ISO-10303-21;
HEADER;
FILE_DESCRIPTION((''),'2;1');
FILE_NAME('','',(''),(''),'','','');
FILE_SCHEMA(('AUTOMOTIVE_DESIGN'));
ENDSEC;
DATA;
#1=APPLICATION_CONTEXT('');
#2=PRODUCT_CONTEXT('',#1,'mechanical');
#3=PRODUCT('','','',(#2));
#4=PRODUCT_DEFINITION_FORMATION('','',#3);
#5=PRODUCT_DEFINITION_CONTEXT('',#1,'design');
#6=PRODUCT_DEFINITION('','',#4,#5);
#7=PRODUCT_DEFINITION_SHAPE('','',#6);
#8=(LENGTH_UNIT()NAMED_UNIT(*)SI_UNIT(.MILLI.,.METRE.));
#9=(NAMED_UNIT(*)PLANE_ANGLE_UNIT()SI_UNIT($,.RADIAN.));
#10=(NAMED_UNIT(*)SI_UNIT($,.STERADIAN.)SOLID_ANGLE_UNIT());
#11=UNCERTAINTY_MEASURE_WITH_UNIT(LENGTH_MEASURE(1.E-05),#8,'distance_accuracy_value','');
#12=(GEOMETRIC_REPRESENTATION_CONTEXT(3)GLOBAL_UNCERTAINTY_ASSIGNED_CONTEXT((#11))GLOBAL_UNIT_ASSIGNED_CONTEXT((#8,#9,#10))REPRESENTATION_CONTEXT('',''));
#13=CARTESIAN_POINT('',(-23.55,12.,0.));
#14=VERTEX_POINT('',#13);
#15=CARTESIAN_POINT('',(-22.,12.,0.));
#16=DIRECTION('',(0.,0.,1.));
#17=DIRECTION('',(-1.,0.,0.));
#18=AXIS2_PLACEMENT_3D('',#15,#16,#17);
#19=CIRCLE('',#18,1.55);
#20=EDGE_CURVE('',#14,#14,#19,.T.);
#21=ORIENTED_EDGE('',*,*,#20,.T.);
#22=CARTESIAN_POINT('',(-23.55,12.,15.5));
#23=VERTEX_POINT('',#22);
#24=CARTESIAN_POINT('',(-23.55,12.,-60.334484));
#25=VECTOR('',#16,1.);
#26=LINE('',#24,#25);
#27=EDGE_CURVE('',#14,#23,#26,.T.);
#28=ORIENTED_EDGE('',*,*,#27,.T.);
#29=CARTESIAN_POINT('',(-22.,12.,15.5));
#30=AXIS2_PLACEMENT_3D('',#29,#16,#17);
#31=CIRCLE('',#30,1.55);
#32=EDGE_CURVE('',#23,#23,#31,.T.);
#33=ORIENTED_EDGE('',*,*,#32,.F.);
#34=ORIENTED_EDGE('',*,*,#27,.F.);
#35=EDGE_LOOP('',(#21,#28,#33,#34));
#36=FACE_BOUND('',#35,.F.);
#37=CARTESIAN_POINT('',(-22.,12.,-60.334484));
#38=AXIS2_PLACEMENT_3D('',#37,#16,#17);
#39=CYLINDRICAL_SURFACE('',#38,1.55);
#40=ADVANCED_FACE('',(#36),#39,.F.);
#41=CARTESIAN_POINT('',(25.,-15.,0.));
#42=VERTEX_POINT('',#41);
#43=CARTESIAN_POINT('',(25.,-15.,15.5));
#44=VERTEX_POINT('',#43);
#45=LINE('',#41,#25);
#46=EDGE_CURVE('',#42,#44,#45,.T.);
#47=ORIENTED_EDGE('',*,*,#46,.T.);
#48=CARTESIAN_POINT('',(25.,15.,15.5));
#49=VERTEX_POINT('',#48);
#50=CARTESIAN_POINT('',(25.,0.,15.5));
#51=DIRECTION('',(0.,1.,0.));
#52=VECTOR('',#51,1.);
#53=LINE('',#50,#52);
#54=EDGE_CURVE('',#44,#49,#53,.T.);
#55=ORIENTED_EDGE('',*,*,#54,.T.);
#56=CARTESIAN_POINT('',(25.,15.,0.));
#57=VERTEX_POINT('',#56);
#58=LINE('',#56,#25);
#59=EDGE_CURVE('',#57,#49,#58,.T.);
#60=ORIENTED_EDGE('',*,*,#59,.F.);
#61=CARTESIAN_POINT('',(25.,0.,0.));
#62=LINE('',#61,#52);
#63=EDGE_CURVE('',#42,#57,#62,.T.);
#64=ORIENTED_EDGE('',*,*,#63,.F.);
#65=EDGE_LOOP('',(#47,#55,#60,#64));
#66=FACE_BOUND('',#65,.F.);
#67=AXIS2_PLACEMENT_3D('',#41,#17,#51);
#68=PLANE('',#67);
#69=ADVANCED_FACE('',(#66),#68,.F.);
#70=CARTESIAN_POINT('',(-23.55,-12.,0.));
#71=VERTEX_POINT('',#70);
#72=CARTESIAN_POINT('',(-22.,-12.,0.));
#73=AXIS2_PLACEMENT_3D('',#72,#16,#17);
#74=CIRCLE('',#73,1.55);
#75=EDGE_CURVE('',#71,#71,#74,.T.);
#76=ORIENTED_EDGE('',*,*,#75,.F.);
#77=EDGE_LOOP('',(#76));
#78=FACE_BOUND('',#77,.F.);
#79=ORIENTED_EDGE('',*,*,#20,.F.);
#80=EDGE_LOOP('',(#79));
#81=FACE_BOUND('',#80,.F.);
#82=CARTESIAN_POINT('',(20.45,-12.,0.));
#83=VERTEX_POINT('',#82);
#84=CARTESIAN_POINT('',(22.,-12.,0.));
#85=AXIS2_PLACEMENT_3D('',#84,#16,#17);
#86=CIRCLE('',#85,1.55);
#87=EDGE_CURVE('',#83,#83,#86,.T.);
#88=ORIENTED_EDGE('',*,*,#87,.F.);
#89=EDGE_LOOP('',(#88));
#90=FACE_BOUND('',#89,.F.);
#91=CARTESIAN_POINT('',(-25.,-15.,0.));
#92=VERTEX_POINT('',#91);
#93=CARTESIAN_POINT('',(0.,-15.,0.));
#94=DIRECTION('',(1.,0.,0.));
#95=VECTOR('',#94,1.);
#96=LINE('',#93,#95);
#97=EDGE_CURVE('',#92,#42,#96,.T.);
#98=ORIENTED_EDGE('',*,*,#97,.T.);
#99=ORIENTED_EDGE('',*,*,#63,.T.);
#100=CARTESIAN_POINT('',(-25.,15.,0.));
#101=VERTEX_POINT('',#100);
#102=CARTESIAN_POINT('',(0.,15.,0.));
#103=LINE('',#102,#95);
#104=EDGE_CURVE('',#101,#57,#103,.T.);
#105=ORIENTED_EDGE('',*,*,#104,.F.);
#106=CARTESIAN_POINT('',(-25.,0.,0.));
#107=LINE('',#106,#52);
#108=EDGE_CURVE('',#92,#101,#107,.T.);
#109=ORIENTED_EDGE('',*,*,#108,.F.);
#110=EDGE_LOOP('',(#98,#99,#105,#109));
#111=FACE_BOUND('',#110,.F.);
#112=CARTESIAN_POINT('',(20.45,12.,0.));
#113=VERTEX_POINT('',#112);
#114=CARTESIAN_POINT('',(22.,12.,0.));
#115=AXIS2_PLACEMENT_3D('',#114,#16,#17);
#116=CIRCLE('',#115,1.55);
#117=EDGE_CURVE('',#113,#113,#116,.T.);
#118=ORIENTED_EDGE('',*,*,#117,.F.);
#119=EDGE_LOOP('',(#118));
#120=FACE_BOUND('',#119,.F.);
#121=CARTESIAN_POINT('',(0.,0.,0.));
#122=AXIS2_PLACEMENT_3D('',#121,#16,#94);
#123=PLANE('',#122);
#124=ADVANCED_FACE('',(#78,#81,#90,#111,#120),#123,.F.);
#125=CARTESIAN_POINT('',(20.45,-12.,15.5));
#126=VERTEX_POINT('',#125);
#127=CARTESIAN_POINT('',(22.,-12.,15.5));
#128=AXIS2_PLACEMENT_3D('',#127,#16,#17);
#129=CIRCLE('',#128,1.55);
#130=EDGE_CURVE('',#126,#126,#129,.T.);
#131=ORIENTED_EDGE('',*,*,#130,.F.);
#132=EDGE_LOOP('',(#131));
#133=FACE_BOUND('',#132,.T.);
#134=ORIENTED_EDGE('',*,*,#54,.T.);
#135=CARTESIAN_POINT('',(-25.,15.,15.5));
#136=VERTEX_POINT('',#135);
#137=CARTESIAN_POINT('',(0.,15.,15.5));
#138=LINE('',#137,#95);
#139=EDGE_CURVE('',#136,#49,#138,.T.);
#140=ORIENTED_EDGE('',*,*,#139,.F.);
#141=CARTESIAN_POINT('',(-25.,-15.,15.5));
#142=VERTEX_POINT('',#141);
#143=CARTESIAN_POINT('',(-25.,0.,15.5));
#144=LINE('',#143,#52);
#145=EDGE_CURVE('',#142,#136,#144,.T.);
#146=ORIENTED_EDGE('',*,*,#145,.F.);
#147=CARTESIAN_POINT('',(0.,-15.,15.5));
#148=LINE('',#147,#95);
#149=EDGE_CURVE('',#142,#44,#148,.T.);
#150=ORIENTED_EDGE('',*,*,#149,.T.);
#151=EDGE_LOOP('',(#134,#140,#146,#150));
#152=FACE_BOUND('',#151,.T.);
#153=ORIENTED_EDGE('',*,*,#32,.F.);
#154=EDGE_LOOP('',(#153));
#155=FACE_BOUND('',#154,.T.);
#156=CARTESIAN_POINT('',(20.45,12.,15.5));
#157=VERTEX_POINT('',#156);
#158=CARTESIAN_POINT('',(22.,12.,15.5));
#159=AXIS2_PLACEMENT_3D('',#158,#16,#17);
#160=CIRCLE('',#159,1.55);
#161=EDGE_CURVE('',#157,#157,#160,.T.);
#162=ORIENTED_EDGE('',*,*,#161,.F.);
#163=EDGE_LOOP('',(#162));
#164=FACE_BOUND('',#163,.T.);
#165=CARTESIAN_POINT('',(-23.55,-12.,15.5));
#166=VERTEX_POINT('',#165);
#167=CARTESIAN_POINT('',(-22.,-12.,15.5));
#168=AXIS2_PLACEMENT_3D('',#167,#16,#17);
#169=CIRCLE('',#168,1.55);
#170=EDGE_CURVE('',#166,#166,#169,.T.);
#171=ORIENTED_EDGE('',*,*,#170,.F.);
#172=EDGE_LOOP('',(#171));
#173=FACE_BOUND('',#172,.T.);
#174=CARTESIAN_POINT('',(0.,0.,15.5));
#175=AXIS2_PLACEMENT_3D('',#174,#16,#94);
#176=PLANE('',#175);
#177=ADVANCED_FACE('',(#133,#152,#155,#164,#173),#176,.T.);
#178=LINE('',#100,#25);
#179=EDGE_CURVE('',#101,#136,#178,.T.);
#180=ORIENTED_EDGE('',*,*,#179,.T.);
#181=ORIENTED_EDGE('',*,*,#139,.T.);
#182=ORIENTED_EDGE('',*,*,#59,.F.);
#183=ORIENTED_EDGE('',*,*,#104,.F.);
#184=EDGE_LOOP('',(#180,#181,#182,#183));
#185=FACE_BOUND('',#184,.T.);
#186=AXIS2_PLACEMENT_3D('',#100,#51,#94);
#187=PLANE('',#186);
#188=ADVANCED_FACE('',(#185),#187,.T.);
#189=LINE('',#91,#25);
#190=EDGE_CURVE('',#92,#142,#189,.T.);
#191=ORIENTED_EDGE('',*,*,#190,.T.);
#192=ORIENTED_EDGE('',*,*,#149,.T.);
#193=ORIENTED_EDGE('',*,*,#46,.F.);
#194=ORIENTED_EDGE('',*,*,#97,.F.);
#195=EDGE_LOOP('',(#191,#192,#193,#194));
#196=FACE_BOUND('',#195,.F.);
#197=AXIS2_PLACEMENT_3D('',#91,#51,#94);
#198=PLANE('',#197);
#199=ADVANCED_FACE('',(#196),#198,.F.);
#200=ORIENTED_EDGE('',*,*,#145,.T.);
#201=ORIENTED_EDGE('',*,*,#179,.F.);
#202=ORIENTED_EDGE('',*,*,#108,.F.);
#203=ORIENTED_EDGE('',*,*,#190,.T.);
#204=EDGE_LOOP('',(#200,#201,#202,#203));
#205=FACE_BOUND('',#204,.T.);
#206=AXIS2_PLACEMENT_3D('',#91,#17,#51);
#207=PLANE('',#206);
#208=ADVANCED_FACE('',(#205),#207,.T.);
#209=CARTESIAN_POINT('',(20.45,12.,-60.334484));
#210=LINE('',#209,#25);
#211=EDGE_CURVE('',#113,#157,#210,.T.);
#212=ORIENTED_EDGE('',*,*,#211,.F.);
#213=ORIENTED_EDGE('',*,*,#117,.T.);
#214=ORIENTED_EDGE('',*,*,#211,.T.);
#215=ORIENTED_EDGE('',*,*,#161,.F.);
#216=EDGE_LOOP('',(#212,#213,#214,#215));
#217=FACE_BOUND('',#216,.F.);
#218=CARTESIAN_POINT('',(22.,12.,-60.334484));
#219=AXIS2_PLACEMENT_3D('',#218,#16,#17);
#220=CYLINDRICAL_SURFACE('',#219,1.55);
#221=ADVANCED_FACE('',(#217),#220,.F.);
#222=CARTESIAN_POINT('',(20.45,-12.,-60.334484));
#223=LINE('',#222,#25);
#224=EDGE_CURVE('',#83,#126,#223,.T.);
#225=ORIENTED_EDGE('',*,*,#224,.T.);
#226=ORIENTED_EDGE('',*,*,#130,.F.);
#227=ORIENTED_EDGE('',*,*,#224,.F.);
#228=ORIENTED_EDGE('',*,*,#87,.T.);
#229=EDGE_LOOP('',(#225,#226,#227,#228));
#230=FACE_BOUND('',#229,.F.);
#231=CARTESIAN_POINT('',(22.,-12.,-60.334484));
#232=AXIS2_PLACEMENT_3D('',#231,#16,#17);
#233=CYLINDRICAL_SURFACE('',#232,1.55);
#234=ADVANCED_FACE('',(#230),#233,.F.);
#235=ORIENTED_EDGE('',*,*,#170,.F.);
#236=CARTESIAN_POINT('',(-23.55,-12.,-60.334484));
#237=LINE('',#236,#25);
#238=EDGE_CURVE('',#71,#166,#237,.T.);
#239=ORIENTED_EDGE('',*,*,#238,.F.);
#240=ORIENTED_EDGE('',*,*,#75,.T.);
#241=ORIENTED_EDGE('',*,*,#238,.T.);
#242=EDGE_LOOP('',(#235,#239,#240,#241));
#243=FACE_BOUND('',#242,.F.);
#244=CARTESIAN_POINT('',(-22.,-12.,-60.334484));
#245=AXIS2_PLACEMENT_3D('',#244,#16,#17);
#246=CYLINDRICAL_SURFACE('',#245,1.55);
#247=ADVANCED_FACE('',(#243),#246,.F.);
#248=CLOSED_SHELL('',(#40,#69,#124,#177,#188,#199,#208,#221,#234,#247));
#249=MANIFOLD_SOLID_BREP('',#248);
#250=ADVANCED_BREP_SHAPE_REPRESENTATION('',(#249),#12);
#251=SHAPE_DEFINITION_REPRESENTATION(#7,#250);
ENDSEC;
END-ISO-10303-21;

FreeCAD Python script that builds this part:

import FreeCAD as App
import Part
import Sketcher
Q = App.Units.Quantity


def add_polygon(sketch, points):
    """Adds a closed chain of lines whose ends are joined by coincident constraints."""
    first, n = sketch.GeometryCount, len(points)
    for a, b in zip(points, points[1:] + points[:1]):
        sketch.addGeometry(Part.LineSegment(App.Vector(*a, 0), App.Vector(*b, 0)), False)
    for i in range(n):
        sketch.addConstraint(Sketcher.Constraint("Coincident", first + i, 2, first + (i + 1) % n, 1))

doc = App.newDocument("Part")
params = doc.addObject("Spreadsheet::Sheet", "Params")
for row, (alias, value) in enumerate([
    ("sketch1_width", "50 mm"),
    ("sketch1_height", "30 mm"),
    ("pad1_length", "15.5 mm"),
    ("sketch2_diameter", "3.1 mm"),
    ("hole_diameter", "3.1 mm"),
], start=1):
    params.set(f"A{row}", alias)
    params.set(f"B{row}", "=" + value)
    params.setAlias(f"B{row}", alias)

body = doc.addObject("PartDesign::Body", "Body")

sketch1 = body.newObject("Sketcher::SketchObject", "Sketch")
sketch1.AttachmentSupport = (doc.getObject("XY_Plane"), [""])
sketch1.MapMode = "FlatFace"
add_polygon(sketch1, [(-25, 15), (-25, -15), (25, -15), (25, 15)])
sketch1.addConstraint([
    Sketcher.Constraint("Vertical", 0),
    Sketcher.Constraint("Horizontal", 1),
    Sketcher.Constraint("Vertical", 2),
    Sketcher.Constraint("Horizontal", 3),
    Sketcher.Constraint("Symmetric", 0, 2, 2, 2, -1, 1),
    Sketcher.Constraint("DistanceX", 1, 1, 1, 2, Q("50 mm")),
    Sketcher.Constraint("DistanceY", 0, 2, 0, 1, Q("30 mm")),
])
sketch1.setExpression("Constraints[9]", "Params.sketch1_width")
sketch1.setExpression("Constraints[10]", "Params.sketch1_height")
pad1 = body.newObject("PartDesign::Pad", "Pad")
pad1.Profile = sketch1
pad1.setExpression("Length", "Params.pad1_length")

sketch2 = body.newObject("Sketcher::SketchObject", "Sketch001")
sketch2.AttachmentSupport = (doc.getObject("XY_Plane"), [""])
sketch2.MapMode = "FlatFace"
sketch2.addGeometry([
    Part.Circle(App.Vector(-22, -12, 0), App.Vector(0, 0, 1), 1.6),
    Part.Circle(App.Vector(22, -12, 0), App.Vector(0, 0, 1), 1.6),
    Part.Circle(App.Vector(22, 12, 0), App.Vector(0, 0, 1), 1.6),
    Part.Circle(App.Vector(-22, 12, 0), App.Vector(0, 0, 1), 1.6),
], False)
sketch2.addConstraint([
    Sketcher.Constraint("Equal", 0, 1),
    Sketcher.Constraint("Equal", 1, 2),
    Sketcher.Constraint("Equal", 2, 3),
    Sketcher.Constraint("Symmetric", 0, 3, 2, 3, -1, 1),
    Sketcher.Constraint("Symmetric", 1, 3, 3, 3, -1, 1),
    Sketcher.Constraint("Symmetric", 0, 3, 1, 3, -2),
    Sketcher.Constraint("Diameter", 0, Q("3.1 mm")),
    Sketcher.Constraint("DistanceX", 0, 3, -1, 1, Q("22 mm")),
    Sketcher.Constraint("DistanceY", 0, 3, -1, 1, Q("12 mm")),
])
sketch2.setExpression("Constraints[6]", "Params.sketch2_diameter")
doc.recompute()
hole = body.newObject("PartDesign::Hole", "Hole")
hole.Profile = sketch2
hole.ThreadType = "None"
hole.setExpression("Diameter", "Params.hole_diameter")
hole.DepthType = "ThroughAll"
hole.Reversed = True

doc.recompute()
